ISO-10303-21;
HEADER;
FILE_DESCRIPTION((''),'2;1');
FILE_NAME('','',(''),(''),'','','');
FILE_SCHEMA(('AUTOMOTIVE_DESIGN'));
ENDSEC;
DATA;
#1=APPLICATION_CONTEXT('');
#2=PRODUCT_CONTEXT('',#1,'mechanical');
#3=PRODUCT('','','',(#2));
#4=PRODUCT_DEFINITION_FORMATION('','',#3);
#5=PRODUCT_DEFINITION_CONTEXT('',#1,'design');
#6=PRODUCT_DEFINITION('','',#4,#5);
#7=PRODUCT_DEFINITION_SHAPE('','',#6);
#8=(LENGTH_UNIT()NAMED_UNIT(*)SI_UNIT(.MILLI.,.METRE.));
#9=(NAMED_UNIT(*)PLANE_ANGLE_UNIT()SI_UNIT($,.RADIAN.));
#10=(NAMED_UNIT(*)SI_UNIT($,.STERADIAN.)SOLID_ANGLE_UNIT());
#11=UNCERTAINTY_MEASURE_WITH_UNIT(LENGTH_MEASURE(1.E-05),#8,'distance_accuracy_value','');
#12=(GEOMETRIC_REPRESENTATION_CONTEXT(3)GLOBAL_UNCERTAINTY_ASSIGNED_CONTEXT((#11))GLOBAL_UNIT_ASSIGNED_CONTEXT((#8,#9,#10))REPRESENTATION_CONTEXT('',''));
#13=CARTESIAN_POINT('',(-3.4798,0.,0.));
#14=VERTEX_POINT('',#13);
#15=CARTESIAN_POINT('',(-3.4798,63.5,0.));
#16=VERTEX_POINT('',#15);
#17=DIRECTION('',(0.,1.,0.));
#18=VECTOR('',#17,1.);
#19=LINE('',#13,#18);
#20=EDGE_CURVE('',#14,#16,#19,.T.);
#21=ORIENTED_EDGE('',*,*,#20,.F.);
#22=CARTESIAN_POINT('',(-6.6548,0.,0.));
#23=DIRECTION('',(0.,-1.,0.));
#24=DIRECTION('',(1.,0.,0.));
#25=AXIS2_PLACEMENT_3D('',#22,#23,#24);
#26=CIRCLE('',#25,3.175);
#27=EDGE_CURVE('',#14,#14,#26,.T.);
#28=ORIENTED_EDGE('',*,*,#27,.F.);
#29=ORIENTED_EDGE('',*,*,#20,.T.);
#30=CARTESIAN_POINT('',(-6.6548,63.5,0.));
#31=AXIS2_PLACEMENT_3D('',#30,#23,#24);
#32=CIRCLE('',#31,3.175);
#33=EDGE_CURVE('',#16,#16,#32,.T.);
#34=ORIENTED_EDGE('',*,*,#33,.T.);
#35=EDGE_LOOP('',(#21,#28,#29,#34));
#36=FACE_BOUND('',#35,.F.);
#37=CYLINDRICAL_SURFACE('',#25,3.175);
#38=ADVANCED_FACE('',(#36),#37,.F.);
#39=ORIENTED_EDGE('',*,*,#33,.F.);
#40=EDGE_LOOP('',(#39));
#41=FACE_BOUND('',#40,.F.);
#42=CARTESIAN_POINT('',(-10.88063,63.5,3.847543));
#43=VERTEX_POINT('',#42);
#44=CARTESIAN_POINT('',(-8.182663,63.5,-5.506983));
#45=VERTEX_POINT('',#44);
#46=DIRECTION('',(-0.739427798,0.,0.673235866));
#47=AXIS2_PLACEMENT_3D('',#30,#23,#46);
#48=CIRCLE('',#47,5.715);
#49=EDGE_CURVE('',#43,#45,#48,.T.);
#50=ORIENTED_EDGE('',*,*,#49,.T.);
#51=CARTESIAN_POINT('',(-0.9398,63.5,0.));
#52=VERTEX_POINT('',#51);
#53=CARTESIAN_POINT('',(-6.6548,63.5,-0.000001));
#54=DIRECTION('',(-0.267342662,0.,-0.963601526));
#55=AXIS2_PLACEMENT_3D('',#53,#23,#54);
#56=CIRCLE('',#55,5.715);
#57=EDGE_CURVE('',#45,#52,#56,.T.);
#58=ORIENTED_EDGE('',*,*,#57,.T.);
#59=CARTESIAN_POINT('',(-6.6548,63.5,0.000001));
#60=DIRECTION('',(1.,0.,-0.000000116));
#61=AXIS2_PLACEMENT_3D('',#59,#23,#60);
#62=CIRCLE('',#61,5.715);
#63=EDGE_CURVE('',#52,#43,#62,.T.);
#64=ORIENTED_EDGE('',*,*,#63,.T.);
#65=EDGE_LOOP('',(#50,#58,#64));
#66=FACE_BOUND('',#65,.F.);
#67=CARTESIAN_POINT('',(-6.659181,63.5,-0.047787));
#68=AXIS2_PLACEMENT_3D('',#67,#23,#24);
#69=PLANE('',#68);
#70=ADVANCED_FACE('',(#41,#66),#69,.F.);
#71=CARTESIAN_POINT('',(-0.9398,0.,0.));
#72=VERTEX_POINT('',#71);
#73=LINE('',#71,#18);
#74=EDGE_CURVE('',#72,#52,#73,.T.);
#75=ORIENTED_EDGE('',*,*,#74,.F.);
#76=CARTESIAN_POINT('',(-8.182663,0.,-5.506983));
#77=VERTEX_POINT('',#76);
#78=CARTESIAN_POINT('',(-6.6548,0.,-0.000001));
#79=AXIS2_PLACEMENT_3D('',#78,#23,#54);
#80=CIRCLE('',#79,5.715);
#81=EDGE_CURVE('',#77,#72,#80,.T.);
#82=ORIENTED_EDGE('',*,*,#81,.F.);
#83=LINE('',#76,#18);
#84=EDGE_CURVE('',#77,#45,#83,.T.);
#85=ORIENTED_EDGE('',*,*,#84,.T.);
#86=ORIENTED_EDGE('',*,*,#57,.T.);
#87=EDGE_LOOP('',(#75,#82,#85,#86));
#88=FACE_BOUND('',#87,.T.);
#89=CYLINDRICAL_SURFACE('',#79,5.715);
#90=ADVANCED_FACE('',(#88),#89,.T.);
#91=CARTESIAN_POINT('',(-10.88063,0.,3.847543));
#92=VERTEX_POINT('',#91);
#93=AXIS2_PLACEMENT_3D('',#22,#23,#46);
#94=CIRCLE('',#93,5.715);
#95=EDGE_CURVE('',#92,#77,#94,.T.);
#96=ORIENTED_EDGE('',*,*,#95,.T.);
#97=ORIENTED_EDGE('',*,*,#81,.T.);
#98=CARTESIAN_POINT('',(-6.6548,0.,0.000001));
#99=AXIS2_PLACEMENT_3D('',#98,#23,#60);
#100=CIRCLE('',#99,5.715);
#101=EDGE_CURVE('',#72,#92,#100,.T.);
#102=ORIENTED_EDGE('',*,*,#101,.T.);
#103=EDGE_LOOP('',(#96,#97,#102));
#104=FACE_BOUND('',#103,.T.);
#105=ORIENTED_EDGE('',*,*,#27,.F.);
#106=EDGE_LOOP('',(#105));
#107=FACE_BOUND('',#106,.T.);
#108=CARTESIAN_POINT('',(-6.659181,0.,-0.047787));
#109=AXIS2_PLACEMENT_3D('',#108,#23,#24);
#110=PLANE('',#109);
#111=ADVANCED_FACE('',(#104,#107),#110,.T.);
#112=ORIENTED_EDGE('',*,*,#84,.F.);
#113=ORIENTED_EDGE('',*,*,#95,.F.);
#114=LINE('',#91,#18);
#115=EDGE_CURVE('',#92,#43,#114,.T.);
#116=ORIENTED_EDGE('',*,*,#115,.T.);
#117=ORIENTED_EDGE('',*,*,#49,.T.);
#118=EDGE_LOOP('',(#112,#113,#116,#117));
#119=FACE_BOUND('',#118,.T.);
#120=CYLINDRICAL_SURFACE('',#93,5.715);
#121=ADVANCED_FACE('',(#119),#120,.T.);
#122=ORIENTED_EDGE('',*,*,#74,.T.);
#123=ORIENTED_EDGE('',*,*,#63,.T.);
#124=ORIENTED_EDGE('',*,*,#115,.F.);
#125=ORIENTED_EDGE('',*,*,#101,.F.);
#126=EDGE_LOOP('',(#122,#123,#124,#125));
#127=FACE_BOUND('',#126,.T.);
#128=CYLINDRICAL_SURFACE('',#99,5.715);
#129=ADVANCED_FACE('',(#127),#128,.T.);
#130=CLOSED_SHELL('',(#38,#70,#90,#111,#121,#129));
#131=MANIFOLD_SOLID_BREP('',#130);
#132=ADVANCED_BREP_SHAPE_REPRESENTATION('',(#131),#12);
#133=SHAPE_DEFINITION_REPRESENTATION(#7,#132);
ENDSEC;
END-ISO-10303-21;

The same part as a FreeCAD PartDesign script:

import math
import FreeCAD as App
import Part
import Sketcher
from FreeCAD import Vector
Q = App.Units.Quantity

doc = App.newDocument("Part")
body = doc.addObject("PartDesign::Body", "Body")

# Sketch on XZ plane
sketch1 = body.newObject("Sketcher::SketchObject", "Sketch")
sketch1.AttachmentSupport = (doc.getObject("XZ_Plane"), [""])
sketch1.MapMode = "FlatFace"
sketch1.addGeometry(Part.ArcOfCircle(Part.Circle(Vector(-6.6548, -0.000001, 0), Vector(0, 0, 1), 5.715), math.radians(-105.506201), math.radians(0.000005)), False)
sketch1.addGeometry(Part.ArcOfCircle(Part.Circle(Vector(-6.6548, 0.000001, 0), Vector(0, 0, 1), 5.715), math.radians(-0.000007), math.radians(137.682702)), False)
sketch1.addGeometry(Part.ArcOfCircle(Part.Circle(Vector(-6.6548, 0, 0), Vector(0, 0, 1), 5.715), math.radians(137.682696), math.radians(254.493803)), False)
sketch1.addGeometry(Part.Circle(Vector(-6.6548, 0, 0), Vector(0, 0, 1), 3.175), False)
sketch1.addConstraint(Sketcher.Constraint("Tangent", 0, 2, 1, 1))
sketch1.addConstraint(Sketcher.Constraint("Tangent", 1, 2, 2, 1))
sketch1.addConstraint(Sketcher.Constraint("Tangent", 2, 2, 0, 1))
sketch1.addConstraint(Sketcher.Constraint("Coincident", 3, 3, 0, 3))
sketch1.addConstraint(Sketcher.Constraint("PointOnObject", 0, 3, -1))
sketch1.addConstraint(Sketcher.Constraint("PointOnObject", 0, 2, -1))
sketch1.addConstraint(Sketcher.Constraint("Diameter", 3, Q("0.25 in")))
sketch1.addConstraint(Sketcher.Constraint("Radius", 0, Q("0.225 in")))
sketch1.addConstraint(Sketcher.Constraint("DistanceX", 0, 3, -1, 1, Q("0.262 in")))
sketch1.addConstraint(Sketcher.Constraint("DistanceX", 1, 2, -1, 1, 10.88063))
sketch1.addConstraint(Sketcher.Constraint("DistanceX", 2, 2, -1, 1, 8.182663))
pad1 = body.newObject("PartDesign::Pad", "Pad")
pad1.Profile = sketch1
pad1.Length = Q("2.5 in")
pad1.Reversed = True

doc.recompute()
